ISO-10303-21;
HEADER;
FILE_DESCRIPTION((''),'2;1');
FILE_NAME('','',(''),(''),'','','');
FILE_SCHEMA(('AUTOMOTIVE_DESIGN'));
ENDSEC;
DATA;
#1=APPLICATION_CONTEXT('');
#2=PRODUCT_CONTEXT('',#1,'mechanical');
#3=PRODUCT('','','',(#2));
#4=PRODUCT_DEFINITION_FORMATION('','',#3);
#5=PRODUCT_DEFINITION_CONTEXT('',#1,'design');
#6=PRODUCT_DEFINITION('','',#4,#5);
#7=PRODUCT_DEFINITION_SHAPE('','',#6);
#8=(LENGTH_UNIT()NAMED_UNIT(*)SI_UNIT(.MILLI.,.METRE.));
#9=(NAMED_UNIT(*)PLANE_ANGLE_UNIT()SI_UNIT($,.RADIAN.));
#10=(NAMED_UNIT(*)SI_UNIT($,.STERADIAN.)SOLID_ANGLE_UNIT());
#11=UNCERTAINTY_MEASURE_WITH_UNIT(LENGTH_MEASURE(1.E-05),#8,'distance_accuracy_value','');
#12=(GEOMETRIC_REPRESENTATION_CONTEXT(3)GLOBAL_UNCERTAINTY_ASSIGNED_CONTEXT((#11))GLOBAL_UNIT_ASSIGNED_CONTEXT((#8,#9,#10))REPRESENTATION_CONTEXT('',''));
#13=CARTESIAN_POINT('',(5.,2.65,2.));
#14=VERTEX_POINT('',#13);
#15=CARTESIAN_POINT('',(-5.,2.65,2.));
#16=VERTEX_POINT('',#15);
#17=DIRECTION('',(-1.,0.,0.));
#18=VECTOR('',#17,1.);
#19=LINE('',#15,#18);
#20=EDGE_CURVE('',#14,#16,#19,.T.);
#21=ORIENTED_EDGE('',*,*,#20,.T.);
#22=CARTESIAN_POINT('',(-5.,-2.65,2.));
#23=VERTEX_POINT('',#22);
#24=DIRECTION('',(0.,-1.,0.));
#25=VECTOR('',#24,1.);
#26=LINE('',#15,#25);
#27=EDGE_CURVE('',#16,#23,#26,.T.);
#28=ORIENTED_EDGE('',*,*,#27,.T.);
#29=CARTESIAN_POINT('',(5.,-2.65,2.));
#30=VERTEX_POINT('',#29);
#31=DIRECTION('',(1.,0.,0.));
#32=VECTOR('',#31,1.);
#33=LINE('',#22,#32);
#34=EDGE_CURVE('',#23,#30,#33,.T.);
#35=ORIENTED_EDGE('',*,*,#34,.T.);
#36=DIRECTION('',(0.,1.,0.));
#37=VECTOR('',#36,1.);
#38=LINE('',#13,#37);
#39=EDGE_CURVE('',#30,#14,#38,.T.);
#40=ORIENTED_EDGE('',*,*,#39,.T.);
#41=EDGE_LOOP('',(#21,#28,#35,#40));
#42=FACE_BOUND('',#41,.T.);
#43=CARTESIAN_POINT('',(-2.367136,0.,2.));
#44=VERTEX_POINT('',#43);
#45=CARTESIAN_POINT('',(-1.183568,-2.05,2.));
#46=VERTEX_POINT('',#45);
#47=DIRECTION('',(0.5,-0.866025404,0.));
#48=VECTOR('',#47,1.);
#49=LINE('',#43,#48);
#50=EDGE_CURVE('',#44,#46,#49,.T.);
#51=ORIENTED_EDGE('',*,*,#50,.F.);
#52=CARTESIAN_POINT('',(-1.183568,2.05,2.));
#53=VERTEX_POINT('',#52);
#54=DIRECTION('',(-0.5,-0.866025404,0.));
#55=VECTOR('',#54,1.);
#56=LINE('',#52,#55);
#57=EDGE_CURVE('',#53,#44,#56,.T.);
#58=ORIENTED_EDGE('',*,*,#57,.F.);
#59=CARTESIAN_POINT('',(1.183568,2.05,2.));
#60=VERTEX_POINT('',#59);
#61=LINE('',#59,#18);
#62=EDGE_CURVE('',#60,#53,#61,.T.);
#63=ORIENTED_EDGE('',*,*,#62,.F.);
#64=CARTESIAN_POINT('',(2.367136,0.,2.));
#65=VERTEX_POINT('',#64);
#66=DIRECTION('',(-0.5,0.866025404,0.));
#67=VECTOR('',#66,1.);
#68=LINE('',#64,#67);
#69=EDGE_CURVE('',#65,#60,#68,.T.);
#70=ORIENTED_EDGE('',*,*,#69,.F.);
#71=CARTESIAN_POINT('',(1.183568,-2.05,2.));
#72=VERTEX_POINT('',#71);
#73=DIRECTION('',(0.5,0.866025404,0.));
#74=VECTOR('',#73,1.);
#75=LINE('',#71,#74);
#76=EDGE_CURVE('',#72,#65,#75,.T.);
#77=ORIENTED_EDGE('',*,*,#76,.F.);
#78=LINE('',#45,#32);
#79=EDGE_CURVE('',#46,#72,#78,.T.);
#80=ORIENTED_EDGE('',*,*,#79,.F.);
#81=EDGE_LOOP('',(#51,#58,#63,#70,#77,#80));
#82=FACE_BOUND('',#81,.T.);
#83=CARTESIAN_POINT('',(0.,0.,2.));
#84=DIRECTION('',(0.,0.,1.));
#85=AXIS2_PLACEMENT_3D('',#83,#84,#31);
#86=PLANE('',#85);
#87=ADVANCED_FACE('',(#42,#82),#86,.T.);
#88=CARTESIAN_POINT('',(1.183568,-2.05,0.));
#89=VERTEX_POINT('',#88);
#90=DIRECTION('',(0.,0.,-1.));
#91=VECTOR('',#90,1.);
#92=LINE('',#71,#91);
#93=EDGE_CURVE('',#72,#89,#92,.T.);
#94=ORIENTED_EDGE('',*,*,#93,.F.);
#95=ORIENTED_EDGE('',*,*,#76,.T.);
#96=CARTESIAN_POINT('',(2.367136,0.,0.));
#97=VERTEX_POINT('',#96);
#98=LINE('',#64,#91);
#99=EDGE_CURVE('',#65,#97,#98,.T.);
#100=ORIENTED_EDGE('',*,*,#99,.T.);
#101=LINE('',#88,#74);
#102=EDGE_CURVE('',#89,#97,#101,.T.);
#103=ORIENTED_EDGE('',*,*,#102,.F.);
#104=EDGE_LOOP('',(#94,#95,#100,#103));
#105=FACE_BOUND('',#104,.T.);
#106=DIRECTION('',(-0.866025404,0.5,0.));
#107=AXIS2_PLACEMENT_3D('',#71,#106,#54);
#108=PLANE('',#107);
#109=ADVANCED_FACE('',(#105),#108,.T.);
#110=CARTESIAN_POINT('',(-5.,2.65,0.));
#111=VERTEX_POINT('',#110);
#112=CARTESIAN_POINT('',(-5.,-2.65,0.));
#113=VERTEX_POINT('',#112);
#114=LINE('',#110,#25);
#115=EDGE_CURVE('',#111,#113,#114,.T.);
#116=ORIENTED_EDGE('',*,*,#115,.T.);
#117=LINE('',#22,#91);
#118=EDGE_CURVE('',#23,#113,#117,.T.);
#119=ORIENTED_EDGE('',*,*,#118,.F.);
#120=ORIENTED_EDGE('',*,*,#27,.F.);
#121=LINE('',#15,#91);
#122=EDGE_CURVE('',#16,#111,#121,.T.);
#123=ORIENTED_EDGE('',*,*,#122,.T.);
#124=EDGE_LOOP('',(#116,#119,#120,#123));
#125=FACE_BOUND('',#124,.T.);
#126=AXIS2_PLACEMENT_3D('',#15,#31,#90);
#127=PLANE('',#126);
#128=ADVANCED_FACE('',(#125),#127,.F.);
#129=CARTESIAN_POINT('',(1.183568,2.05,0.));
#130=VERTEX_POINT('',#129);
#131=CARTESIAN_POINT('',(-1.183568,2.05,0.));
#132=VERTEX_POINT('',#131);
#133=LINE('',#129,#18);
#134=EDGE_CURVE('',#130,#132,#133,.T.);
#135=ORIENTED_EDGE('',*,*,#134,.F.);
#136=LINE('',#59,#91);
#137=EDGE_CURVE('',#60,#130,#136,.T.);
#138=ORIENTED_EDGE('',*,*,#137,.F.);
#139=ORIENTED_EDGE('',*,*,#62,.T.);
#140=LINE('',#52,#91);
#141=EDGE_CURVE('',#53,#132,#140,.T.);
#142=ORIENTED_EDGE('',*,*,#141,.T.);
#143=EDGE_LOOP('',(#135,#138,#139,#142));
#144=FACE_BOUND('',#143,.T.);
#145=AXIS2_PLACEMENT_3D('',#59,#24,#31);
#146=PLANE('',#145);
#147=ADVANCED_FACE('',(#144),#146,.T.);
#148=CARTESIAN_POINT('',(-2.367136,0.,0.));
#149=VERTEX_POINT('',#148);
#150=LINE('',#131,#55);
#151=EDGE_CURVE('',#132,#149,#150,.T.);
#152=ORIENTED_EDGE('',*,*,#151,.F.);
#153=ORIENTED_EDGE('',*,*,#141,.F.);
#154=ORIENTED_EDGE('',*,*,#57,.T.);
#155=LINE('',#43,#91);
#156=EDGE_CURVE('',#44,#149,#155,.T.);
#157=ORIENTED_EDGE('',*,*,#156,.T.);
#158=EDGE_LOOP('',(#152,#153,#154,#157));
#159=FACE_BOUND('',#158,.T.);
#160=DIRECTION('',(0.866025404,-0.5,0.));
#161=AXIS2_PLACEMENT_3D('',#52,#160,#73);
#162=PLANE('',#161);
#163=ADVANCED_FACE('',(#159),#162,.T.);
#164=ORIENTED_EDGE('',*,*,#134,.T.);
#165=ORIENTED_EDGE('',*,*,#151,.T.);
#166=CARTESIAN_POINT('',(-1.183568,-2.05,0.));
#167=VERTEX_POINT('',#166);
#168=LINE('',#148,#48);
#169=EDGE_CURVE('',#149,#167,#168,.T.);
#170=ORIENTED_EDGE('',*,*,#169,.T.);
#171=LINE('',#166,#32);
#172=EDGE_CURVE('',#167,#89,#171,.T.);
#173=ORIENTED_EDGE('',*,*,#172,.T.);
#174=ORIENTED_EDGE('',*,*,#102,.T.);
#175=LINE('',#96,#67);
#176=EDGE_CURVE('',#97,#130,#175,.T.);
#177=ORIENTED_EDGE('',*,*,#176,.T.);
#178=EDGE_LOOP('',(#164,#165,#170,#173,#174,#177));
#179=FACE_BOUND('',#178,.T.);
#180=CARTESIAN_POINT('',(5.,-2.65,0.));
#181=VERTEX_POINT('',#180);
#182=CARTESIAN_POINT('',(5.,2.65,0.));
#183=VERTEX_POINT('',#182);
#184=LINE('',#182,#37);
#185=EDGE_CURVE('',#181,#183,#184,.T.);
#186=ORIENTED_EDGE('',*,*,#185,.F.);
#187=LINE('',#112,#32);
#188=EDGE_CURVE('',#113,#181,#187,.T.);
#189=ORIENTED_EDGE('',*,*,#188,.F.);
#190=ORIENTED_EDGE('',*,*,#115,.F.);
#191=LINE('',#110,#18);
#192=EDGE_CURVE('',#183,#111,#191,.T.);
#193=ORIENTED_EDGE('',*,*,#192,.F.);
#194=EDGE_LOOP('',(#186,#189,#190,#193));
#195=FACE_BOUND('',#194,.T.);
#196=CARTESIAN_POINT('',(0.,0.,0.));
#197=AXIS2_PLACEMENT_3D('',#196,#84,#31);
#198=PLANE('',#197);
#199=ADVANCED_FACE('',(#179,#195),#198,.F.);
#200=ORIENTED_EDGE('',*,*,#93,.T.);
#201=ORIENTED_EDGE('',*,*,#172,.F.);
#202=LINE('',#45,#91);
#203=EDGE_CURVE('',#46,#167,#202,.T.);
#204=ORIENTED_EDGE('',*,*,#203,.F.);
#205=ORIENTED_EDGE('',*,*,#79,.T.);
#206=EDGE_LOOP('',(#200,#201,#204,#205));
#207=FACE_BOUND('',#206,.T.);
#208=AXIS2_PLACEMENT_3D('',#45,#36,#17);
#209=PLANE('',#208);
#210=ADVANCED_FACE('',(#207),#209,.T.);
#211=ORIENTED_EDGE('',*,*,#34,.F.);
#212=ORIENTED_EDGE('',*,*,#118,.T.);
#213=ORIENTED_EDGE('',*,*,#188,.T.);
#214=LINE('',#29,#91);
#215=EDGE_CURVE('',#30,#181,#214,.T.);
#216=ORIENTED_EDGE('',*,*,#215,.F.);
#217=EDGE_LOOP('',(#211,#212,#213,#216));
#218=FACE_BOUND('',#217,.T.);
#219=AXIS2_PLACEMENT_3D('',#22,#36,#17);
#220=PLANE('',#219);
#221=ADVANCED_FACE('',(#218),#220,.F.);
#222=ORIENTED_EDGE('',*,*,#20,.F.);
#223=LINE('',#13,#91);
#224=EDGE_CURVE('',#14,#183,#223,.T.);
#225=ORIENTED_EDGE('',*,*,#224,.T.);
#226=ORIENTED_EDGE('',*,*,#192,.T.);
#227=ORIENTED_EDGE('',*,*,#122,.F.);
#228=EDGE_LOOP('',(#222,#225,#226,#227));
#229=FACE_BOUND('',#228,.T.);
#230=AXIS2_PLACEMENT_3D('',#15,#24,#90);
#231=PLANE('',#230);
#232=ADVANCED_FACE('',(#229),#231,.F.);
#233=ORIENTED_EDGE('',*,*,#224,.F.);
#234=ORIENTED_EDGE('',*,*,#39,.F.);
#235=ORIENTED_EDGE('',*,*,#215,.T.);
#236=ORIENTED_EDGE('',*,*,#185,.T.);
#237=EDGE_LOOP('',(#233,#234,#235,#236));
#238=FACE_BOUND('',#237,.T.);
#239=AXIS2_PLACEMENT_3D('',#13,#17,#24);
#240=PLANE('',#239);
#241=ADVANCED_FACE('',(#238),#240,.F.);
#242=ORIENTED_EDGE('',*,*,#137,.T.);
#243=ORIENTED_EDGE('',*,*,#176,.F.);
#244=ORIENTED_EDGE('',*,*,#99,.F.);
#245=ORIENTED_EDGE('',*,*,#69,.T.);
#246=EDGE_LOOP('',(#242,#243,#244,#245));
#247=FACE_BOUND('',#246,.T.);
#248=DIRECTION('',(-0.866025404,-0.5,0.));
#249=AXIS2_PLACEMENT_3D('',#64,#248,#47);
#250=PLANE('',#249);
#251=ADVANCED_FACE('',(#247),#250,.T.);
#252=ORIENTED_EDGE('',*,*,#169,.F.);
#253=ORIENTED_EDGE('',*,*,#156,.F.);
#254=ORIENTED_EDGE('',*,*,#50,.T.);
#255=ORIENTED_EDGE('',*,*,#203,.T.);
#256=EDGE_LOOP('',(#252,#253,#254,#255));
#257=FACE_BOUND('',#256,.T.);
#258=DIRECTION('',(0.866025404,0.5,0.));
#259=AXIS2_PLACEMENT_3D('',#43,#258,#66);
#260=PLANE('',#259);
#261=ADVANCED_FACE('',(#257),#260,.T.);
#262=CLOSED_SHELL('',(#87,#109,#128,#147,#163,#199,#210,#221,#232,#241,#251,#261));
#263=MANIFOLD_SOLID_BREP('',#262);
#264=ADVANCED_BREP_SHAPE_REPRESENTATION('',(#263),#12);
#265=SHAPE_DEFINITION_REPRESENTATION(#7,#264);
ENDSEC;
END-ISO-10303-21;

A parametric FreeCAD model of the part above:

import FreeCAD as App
import Part
import Sketcher
Q = App.Units.Quantity

doc = App.newDocument("Part")
body = doc.addObject("PartDesign::Body", "Body")

sketch1 = body.newObject("Sketcher::SketchObject", "Sketch")
sketch1.AttachmentSupport = (doc.getObject("XY_Plane"), [""])
sketch1.MapMode = "FlatFace"
sketch1.addGeometry([
    Part.LineSegment(App.Vector(-5, 2.6, 0), App.Vector(-5, -2.6, 0)),
    Part.LineSegment(App.Vector(-5, -2.6, 0), App.Vector(5, -2.6, 0)),
    Part.LineSegment(App.Vector(5, -2.6, 0), App.Vector(5, 2.6, 0)),
    Part.LineSegment(App.Vector(5, 2.6, 0), App.Vector(-5, 2.6, 0)),
    Part.LineSegment(App.Vector(1.2, 2, 0), App.Vector(2.4, 0, 0)),
    Part.LineSegment(App.Vector(2.4, 0, 0), App.Vector(1.2, -2, 0)),
    Part.LineSegment(App.Vector(1.2, -2, 0), App.Vector(-1.2, -2, 0)),
    Part.LineSegment(App.Vector(-1.2, -2, 0), App.Vector(-2.4, 0, 0)),
    Part.LineSegment(App.Vector(-2.4, 0, 0), App.Vector(-1.2, 2, 0)),
    Part.LineSegment(App.Vector(-1.2, 2, 0), App.Vector(1.2, 2, 0)),
], False)
sketch1.addConstraint([
    Sketcher.Constraint("Coincident", 0, 2, 1, 1),
    Sketcher.Constraint("Coincident", 1, 2, 2, 1),
    Sketcher.Constraint("Coincident", 2, 2, 3, 1),
    Sketcher.Constraint("Coincident", 3, 2, 0, 1),
    Sketcher.Constraint("Coincident", 4, 2, 5, 1),
    Sketcher.Constraint("Coincident", 5, 2, 6, 1),
    Sketcher.Constraint("Coincident", 6, 2, 7, 1),
    Sketcher.Constraint("Coincident", 7, 2, 8, 1),
    Sketcher.Constraint("Coincident", 8, 2, 9, 1),
    Sketcher.Constraint("Coincident", 9, 2, 4, 1),
    Sketcher.Constraint("Vertical", 0),
    Sketcher.Constraint("Horizontal", 1),
    Sketcher.Constraint("Vertical", 2),
    Sketcher.Constraint("Horizontal", 3),
    Sketcher.Constraint("Horizontal", 6),
    Sketcher.Constraint("Horizontal", 9),
    Sketcher.Constraint("Symmetric", 0, 2, 2, 2, -1, 1),
    Sketcher.Constraint("Symmetric", 4, 2, 7, 2, -1, 1),
    Sketcher.Constraint("Symmetric", 5, 2, 8, 2, -1, 1),
    Sketcher.Constraint("PointOnObject", 4, 2, -1),
    Sketcher.Constraint("Parallel", 4, 7),
    Sketcher.Constraint("Vertical", 6, 2, 8, 2),
    Sketcher.Constraint("DistanceX", 1, 1, 1, 2, 10.0),
    Sketcher.Constraint("Angle", 4, Q("-60 deg")),
    Sketcher.Constraint("DistanceY", 0, 2, 0, 1, 5.3),
    Sketcher.Constraint("DistanceY", 1, 2, 5, 2, 0.6),
    Sketcher.Constraint("DistanceX", 6, 2, 6, 1, 2.367136),
])
pad1 = body.newObject("PartDesign::Pad", "Pad")
pad1.Profile = sketch1
pad1.Length = 2

doc.recompute()
